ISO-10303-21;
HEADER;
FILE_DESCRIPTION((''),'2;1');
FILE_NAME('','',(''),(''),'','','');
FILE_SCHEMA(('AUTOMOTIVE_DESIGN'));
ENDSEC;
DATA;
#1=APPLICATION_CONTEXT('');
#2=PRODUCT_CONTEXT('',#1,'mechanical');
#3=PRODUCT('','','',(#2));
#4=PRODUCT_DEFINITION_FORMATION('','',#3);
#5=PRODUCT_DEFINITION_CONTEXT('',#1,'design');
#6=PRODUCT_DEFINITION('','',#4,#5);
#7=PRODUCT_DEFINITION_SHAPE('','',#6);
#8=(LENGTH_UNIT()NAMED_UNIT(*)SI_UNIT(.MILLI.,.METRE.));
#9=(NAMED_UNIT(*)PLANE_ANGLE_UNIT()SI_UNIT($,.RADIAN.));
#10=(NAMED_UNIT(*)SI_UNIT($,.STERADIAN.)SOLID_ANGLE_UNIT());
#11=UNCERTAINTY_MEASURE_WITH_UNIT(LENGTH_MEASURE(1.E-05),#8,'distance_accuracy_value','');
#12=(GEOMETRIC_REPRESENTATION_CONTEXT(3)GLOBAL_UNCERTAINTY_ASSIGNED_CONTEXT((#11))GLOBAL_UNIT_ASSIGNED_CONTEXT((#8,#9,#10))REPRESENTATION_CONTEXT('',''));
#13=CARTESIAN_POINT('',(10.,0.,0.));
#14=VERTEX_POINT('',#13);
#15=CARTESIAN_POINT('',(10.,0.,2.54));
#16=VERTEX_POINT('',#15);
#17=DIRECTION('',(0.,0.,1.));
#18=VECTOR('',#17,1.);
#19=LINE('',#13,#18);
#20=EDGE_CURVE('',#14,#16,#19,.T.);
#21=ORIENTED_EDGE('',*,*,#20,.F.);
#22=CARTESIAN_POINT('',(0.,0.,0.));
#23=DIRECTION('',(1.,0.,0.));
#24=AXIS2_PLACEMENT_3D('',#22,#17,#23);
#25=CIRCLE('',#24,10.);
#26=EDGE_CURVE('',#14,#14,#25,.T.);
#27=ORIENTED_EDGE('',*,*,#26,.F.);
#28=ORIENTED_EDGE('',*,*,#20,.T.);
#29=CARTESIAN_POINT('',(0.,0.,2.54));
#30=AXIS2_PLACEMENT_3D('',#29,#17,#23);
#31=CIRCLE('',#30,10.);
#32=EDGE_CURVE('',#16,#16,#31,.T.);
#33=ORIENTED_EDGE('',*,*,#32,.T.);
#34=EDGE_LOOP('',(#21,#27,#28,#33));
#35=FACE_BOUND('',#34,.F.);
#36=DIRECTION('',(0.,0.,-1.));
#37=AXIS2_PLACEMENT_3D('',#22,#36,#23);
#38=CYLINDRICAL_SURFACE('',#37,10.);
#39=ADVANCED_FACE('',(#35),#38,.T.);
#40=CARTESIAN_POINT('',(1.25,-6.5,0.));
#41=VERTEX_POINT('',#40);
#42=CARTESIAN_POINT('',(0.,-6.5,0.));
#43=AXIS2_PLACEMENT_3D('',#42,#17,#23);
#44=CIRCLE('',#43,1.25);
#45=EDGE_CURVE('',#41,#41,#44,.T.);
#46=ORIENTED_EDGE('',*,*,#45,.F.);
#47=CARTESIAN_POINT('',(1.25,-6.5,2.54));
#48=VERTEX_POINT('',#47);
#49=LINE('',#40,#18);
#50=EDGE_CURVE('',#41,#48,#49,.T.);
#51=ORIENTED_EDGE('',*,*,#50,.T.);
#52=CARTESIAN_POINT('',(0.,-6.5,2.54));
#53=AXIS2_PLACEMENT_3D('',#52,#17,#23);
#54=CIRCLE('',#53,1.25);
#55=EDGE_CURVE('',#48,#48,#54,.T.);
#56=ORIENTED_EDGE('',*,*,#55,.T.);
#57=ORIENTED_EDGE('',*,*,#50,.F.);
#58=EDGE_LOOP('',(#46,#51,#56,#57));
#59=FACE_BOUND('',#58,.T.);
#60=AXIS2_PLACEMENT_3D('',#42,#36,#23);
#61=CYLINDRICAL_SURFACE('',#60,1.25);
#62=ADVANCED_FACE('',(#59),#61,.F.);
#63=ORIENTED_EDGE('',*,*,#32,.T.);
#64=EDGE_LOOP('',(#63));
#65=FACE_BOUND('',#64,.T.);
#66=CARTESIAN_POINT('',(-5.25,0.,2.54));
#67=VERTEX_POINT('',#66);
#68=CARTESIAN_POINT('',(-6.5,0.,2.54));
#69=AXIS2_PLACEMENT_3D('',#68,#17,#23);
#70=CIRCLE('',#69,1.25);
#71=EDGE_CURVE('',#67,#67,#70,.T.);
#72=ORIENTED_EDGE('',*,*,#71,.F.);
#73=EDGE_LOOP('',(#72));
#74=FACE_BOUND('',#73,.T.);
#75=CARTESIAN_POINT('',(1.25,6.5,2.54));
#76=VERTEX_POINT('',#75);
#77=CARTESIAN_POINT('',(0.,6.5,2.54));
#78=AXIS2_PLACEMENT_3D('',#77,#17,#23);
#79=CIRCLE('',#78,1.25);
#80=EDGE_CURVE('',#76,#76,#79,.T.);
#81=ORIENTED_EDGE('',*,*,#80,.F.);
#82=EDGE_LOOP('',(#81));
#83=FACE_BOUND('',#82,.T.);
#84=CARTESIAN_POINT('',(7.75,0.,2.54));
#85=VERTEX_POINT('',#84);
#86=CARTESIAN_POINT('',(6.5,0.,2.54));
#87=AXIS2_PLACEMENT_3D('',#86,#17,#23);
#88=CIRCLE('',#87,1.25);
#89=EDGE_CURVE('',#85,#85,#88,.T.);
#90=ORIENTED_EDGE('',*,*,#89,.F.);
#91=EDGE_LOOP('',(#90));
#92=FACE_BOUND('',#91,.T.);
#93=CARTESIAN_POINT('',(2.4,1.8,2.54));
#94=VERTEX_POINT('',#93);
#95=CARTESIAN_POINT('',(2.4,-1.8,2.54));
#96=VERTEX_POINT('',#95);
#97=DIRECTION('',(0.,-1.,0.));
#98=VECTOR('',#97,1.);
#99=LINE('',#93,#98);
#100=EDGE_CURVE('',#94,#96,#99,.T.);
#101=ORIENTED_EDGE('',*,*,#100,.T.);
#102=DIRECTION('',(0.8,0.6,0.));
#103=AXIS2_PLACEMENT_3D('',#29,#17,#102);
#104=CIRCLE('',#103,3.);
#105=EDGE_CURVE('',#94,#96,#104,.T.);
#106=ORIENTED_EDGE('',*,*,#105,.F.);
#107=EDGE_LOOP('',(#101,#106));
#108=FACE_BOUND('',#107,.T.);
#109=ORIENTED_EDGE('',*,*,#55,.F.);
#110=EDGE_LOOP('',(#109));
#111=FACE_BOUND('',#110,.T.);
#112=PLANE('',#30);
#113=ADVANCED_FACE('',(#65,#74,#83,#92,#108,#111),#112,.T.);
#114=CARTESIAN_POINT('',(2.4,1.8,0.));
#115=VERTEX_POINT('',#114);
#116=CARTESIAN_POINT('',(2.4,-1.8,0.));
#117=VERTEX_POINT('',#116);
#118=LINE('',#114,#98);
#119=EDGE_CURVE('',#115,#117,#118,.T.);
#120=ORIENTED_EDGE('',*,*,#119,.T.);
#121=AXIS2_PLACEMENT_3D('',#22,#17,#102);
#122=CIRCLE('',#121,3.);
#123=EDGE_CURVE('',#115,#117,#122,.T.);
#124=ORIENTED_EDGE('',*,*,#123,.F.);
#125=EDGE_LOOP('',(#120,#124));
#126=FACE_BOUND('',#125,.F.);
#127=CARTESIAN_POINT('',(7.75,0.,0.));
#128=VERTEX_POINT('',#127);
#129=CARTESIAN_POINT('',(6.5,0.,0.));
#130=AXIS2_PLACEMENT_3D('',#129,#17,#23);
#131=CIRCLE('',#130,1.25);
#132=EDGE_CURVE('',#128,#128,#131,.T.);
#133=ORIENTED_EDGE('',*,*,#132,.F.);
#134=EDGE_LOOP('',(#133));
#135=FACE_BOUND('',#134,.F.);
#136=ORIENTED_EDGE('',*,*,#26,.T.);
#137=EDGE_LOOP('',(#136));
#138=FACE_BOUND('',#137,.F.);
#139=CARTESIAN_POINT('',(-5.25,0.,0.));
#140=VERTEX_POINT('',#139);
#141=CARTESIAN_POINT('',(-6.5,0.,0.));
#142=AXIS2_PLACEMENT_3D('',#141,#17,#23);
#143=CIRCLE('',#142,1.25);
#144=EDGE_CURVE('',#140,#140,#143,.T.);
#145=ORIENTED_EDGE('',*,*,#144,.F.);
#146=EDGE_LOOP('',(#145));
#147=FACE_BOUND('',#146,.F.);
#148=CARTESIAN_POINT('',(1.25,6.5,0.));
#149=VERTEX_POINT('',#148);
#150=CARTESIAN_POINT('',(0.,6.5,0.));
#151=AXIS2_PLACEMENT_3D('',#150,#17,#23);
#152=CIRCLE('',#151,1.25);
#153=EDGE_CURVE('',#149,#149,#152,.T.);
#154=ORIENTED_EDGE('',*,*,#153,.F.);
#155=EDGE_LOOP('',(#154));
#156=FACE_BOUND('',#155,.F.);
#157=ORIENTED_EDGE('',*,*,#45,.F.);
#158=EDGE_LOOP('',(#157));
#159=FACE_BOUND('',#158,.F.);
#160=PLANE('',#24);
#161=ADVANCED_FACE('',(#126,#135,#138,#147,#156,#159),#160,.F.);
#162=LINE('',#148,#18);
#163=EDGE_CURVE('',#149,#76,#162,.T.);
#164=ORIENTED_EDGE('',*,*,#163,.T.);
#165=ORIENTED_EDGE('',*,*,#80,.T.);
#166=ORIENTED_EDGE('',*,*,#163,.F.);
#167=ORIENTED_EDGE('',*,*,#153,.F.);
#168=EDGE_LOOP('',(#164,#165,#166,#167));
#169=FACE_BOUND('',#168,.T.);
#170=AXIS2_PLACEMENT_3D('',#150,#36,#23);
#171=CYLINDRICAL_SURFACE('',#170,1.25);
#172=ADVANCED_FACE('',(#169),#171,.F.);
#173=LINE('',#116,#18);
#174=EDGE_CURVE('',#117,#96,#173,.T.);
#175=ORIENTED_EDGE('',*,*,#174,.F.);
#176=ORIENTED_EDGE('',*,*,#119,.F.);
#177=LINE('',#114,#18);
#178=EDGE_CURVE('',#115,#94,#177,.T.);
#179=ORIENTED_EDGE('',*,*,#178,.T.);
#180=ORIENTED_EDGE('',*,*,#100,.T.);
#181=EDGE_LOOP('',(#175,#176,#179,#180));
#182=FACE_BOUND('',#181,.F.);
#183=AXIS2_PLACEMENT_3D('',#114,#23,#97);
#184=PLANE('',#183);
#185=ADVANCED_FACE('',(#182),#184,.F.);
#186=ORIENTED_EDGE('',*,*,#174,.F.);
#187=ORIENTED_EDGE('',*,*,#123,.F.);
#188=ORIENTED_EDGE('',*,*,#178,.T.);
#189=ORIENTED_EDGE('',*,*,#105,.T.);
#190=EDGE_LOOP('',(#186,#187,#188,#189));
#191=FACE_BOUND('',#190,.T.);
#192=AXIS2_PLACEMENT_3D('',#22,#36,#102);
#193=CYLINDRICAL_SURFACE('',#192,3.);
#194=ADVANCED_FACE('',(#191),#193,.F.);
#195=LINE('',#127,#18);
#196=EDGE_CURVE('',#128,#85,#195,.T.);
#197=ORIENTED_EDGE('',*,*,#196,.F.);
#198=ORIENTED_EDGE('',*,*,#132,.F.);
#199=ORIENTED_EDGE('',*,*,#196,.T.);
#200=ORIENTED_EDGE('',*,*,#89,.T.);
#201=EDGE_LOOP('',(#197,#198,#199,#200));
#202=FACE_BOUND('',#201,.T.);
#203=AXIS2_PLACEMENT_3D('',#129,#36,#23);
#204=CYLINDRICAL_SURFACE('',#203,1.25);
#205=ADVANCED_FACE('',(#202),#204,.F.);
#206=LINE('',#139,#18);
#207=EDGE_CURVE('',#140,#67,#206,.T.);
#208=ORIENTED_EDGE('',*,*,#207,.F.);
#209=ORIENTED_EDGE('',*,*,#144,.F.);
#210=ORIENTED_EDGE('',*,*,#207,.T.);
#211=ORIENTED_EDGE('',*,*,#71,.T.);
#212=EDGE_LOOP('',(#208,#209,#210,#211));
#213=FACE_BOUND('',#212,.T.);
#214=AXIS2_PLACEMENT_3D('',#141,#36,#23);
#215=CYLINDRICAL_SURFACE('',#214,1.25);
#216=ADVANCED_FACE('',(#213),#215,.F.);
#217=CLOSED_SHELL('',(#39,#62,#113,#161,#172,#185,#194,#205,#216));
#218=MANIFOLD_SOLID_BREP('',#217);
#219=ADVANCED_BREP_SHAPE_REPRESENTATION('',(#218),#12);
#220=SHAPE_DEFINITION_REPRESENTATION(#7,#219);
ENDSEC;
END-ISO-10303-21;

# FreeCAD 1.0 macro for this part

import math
import FreeCAD as App
import Part
import Sketcher
from FreeCAD import Vector
Q = App.Units.Quantity

doc = App.newDocument("Part")
body = doc.addObject("PartDesign::Body", "Body")

# Sketch on XY plane
sketch1 = doc.addObject("Sketcher::SketchObject", "Sketch")
body.addObject(sketch1)
sketch1.AttachmentSupport = (doc.XY_Plane, [""])
sketch1.MapMode = "FlatFace"
sketch1.addGeometry(Part.Circle(Vector(0, 0, 0), Vector(0, 0, 1), 10), False)
sketch1.addGeometry(Part.Circle(Vector(0, -6.5, 0), Vector(0, 0, 1), 1.2), False)
sketch1.addGeometry(Part.Circle(Vector(-6.5, 0, 0), Vector(0, 0, 1), 1.2), False)
sketch1.addGeometry(Part.ArcOfCircle(Part.Circle(Vector(0, 0, 0), Vector(0, 0, 1), 3), math.radians(37), math.radians(323)), False)
sketch1.addGeometry(Part.LineSegment(Vector(2.4, 1.8, 0), Vector(2.4, -1.8, 0)), False)
sketch1.addGeometry(Part.Circle(Vector(6.5, 0, 0), Vector(0, 0, 1), 1.2), False)
sketch1.addGeometry(Part.Circle(Vector(0, 6.5, 0), Vector(0, 0, 1), 1.2), False)
sketch1.addConstraint(Sketcher.Constraint("Coincident", 3, 1, 4, 1))
sketch1.addConstraint(Sketcher.Constraint("Coincident", 4, 2, 3, 2))
sketch1.addConstraint(Sketcher.Constraint("Vertical", 4))
sketch1.addConstraint(Sketcher.Constraint("Coincident", 0, 3, -1, 1))
sketch1.addConstraint(Sketcher.Constraint("Coincident", 3, 3, -1, 1))
sketch1.addConstraint(Sketcher.Constraint("Equal", 1, 2))
sketch1.addConstraint(Sketcher.Constraint("Equal", 2, 5))
sketch1.addConstraint(Sketcher.Constraint("Equal", 5, 6))
sketch1.addConstraint(Sketcher.Constraint("Symmetric", 2, 3, 5, 3, -1, 1))
sketch1.addConstraint(Sketcher.Constraint("Symmetric", 1, 3, 6, 3, -1, 1))
sketch1.addConstraint(Sketcher.Constraint("PointOnObject", 1, 3, -2))
sketch1.addConstraint(Sketcher.Constraint("PointOnObject", 2, 3, -1))
sketch1.addConstraint(Sketcher.Constraint("Diameter", 0, Q("20 mm")))
sketch1.addConstraint(Sketcher.Constraint("Radius", 3, Q("3 mm")))
sketch1.addConstraint(Sketcher.Constraint("Diameter", 1, Q("2.5 mm")))
sketch1.addConstraint(Sketcher.Constraint("DistanceY", 4, 2, 4, 1, Q("3.6 mm")))
sketch1.addConstraint(Sketcher.Constraint("DistanceX", 2, 3, 5, 3, Q("13 mm")))
sketch1.addConstraint(Sketcher.Constraint("DistanceY", 1, 3, 6, 3, Q("13 mm")))
pad1 = doc.addObject("PartDesign::Pad", "Pad")
body.addObject(pad1)
pad1.Profile = sketch1
pad1.Length = 2.54

doc.recompute()
